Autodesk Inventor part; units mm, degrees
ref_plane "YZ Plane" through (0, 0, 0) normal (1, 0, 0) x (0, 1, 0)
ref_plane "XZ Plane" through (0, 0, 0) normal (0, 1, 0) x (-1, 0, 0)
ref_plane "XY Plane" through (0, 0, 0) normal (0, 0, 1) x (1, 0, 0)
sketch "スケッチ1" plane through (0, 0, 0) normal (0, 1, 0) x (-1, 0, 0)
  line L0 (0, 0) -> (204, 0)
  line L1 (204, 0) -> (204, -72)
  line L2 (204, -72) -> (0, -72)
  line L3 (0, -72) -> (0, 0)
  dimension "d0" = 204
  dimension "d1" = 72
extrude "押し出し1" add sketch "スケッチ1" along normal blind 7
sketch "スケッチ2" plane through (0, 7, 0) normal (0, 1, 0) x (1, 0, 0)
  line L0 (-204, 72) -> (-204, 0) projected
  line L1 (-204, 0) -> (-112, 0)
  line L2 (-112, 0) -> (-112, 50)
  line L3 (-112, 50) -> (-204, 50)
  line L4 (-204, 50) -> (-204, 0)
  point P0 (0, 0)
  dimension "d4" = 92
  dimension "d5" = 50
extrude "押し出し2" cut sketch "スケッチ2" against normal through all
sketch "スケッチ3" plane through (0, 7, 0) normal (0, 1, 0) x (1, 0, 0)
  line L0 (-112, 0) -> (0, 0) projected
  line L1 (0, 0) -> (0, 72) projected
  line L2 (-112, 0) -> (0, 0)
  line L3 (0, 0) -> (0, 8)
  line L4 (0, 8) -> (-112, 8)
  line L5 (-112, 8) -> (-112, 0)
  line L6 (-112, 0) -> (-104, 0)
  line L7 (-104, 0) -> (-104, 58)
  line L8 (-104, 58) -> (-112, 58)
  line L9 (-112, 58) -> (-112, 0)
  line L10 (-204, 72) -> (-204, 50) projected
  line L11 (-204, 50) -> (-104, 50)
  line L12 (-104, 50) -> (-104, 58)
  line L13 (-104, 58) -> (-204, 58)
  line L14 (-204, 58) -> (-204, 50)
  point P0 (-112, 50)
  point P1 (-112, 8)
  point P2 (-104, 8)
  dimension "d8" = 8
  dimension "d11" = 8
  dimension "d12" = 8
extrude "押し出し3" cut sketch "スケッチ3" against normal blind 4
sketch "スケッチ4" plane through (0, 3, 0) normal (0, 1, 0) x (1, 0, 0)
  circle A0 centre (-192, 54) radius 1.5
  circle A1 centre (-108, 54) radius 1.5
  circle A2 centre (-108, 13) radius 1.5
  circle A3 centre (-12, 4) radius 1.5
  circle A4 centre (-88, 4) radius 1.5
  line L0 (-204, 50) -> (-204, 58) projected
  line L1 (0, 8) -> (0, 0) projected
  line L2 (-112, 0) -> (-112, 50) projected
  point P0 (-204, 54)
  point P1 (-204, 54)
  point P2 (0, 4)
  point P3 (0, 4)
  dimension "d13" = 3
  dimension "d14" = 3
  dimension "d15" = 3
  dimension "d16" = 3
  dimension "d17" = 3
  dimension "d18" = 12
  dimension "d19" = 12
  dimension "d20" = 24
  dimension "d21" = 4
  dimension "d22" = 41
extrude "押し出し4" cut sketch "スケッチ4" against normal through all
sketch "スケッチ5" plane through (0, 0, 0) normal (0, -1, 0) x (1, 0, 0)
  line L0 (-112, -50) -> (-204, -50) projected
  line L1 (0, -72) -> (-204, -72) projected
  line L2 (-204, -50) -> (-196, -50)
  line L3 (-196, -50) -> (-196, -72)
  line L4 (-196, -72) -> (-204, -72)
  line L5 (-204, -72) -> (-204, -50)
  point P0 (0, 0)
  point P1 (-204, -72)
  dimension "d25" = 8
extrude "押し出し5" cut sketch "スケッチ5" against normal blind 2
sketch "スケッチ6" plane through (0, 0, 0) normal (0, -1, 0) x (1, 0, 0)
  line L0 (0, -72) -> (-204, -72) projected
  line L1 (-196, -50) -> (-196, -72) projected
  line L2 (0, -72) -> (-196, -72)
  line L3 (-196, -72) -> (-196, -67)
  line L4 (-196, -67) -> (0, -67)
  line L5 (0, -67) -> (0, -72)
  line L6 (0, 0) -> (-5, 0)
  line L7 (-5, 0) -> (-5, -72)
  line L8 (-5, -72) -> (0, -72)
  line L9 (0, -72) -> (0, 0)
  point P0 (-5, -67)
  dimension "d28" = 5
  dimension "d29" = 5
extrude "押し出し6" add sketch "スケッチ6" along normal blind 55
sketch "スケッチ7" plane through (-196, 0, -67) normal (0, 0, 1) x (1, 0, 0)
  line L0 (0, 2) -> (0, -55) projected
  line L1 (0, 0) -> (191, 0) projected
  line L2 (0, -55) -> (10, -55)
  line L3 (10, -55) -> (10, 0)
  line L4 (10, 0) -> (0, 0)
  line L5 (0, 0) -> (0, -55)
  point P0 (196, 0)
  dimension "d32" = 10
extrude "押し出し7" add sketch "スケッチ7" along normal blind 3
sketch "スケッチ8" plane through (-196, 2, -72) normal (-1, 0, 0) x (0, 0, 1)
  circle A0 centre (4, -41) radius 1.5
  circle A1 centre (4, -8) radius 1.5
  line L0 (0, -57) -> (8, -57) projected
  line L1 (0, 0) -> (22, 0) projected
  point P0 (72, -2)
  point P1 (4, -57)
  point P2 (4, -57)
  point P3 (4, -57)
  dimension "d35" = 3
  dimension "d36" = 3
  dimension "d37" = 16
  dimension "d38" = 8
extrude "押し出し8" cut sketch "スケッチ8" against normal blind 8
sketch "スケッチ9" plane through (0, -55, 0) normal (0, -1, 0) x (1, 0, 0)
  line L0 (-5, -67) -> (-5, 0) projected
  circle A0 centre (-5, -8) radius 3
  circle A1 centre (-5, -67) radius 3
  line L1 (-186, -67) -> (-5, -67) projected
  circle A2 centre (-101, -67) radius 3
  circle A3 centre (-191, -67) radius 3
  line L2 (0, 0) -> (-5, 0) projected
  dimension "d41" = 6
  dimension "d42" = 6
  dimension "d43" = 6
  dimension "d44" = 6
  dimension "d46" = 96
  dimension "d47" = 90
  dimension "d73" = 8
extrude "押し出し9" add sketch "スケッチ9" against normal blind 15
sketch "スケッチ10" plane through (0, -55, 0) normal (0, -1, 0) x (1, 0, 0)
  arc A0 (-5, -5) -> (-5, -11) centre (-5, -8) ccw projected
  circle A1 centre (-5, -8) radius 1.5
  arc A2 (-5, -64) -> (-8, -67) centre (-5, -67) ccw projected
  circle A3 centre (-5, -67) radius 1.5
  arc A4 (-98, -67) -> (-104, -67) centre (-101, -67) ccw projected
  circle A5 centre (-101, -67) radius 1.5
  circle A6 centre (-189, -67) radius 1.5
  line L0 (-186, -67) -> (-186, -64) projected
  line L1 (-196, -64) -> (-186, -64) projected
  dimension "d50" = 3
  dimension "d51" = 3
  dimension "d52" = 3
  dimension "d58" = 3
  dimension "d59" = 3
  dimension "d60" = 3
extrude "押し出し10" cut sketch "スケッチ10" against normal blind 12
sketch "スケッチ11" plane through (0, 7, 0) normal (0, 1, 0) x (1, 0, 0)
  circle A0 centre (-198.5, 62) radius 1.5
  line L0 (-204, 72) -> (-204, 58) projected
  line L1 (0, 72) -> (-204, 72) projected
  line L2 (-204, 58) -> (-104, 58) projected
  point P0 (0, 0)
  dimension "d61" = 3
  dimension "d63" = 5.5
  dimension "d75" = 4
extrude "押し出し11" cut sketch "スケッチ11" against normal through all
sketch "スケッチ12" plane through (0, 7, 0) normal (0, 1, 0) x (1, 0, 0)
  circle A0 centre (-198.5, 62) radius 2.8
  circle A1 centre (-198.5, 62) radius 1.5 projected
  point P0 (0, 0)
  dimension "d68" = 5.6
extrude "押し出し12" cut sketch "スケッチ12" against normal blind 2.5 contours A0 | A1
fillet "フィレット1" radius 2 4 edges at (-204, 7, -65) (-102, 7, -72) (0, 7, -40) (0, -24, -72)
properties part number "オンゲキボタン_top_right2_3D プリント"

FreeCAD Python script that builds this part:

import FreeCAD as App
import Part
import Sketcher


def edges_at(feature, points):
    """Names of the edges that pass closest to the given points."""
    edges = feature.Shape.Edges
    near = lambda p: min(range(len(edges)), key=lambda i: edges[i].distToShape(Part.Vertex(*p))[0])
    return sorted({f"Edge{near(p) + 1}" for p in points})

doc = App.newDocument("Part")
body = doc.addObject("PartDesign::Body", "Body")

sketch1 = body.newObject("Sketcher::SketchObject", "Sketch")
sketch1.AttachmentSupport = (doc.getObject("XZ_Plane"), [""])
sketch1.MapMode = "FlatFace"
sketch1.addGeometry([
    Part.LineSegment(App.Vector(-204, 0, 0), App.Vector(0, 0, 0)),
    Part.LineSegment(App.Vector(0, 0, 0), App.Vector(0, -72, 0)),
    Part.LineSegment(App.Vector(0, -72, 0), App.Vector(-204, -72, 0)),
    Part.LineSegment(App.Vector(-204, -72, 0), App.Vector(-204, 0, 0)),
], False)
sketch1.addConstraint([
    Sketcher.Constraint("Coincident", 0, 2, 1, 1),
    Sketcher.Constraint("Coincident", 1, 2, 2, 1),
    Sketcher.Constraint("Coincident", 2, 2, 3, 1),
    Sketcher.Constraint("Coincident", 3, 2, 0, 1),
    Sketcher.Constraint("Horizontal", 0),
    Sketcher.Constraint("Vertical", 1),
    Sketcher.Constraint("Horizontal", 2),
    Sketcher.Constraint("Vertical", 3),
    Sketcher.Constraint("Coincident", 0, 2, -1, 1),
    Sketcher.Constraint("DistanceX", 0, 1, 0, 2, 204.0),
    Sketcher.Constraint("DistanceY", 1, 2, 1, 1, 72.0),
])
pad1 = body.newObject("PartDesign::Pad", "Pad")
pad1.Profile = sketch1
pad1.Length = 7
pad1.Reversed = True

sketch2 = body.newObject("Sketcher::SketchObject", "Sketch001")
sketch2.AttachmentSupport = (doc.getObject("XZ_Plane"), [""])
sketch2.MapMode = "FlatFace"
sketch2.AttachmentOffset = App.Placement(App.Vector(0, 0, -7), App.Rotation())
sketch2.addGeometry([
    Part.LineSegment(App.Vector(-112, -50, 0), App.Vector(-204, -50, 0)),
    Part.LineSegment(App.Vector(-204, -50, 0), App.Vector(-204, 0, 0)),
    Part.LineSegment(App.Vector(-204, 0, 0), App.Vector(-112, 0, 0)),
    Part.LineSegment(App.Vector(-112, 0, 0), App.Vector(-112, -50, 0)),
], False)
sketch2.addConstraint([
    Sketcher.Constraint("Coincident", 0, 2, 1, 1),
    Sketcher.Constraint("Coincident", 1, 2, 2, 1),
    Sketcher.Constraint("Coincident", 2, 2, 3, 1),
    Sketcher.Constraint("Coincident", 3, 2, 0, 1),
    Sketcher.Constraint("Horizontal", 0),
    Sketcher.Constraint("Vertical", 1),
    Sketcher.Constraint("Horizontal", 2),
    Sketcher.Constraint("Vertical", 3),
    Sketcher.Constraint("PointOnObject", 1, 2, -1),
    Sketcher.Constraint("DistanceX", 0, 2, 0, 1, 92.0),
    Sketcher.Constraint("DistanceY", 1, 1, 1, 2, 50.0),
    Sketcher.Constraint("DistanceX", 0, 2, -1, 1, 204.0),
])
pocket1 = body.newObject("PartDesign::Pocket", "Pocket")
pocket1.Profile = sketch2
pocket1.Type = "ThroughAll"
pocket1.Reversed = True

sketch3 = body.newObject("Sketcher::SketchObject", "Sketch002")
sketch3.AttachmentSupport = (doc.getObject("XZ_Plane"), [""])
sketch3.MapMode = "FlatFace"
sketch3.AttachmentOffset = App.Placement(App.Vector(0, 0, -7), App.Rotation())
sketch3.addGeometry([
    Part.LineSegment(App.Vector(-112, 0, 0), App.Vector(0, 0, 0)),
    Part.LineSegment(App.Vector(0, 0, 0), App.Vector(0, -8, 0)),
    Part.LineSegment(App.Vector(0, -8, 0), App.Vector(-104, -8, 0)),
    Part.LineSegment(App.Vector(-104, -8, 0), App.Vector(-104, -58, 0)),
    Part.LineSegment(App.Vector(-104, -58, 0), App.Vector(-204, -58, 0)),
    Part.LineSegment(App.Vector(-204, -58, 0), App.Vector(-204, -50, 0)),
    Part.LineSegment(App.Vector(-204, -50, 0), App.Vector(-112, -50, 0)),
    Part.LineSegment(App.Vector(-112, -50, 0), App.Vector(-112, 0, 0)),
], False)
sketch3.addConstraint([
    Sketcher.Constraint("Coincident", 0, 2, 1, 1),
    Sketcher.Constraint("Coincident", 1, 2, 2, 1),
    Sketcher.Constraint("Coincident", 2, 2, 3, 1),
    Sketcher.Constraint("Coincident", 3, 2, 4, 1),
    Sketcher.Constraint("Coincident", 4, 2, 5, 1),
    Sketcher.Constraint("Coincident", 5, 2, 6, 1),
    Sketcher.Constraint("Coincident", 6, 2, 7, 1),
    Sketcher.Constraint("Coincident", 7, 2, 0, 1),
    Sketcher.Constraint("Horizontal", 0),
    Sketcher.Constraint("Vertical", 1),
    Sketcher.Constraint("Horizontal", 2),
    Sketcher.Constraint("Vertical", 3),
    Sketcher.Constraint("Horizontal", 4),
    Sketcher.Constraint("Vertical", 5),
    Sketcher.Constraint("Horizontal", 6),
    Sketcher.Constraint("Vertical", 7),
    Sketcher.Constraint("Coincident", 0, 2, -1, 1),
    Sketcher.Constraint("Equal", 1, 5),
    Sketcher.Constraint("DistanceY", 1, 2, 1, 1, 8.0),
    Sketcher.Constraint("DistanceX", 6, 2, 3, 2, 8.0),
    Sketcher.Constraint("DistanceX", 0, 1, 0, 2, 112.0),
    Sketcher.Constraint("DistanceX", 4, 2, 4, 1, 100.0),
    Sketcher.Constraint("DistanceY", 3, 2, 3, 1, 50.0),
])
pocket2 = body.newObject("PartDesign::Pocket", "Pocket001")
pocket2.Profile = sketch3
pocket2.Length = 4
pocket2.Reversed = True

sketch4 = body.newObject("Sketcher::SketchObject", "Sketch003")
sketch4.AttachmentSupport = (doc.getObject("XZ_Plane"), [""])
sketch4.MapMode = "FlatFace"
sketch4.AttachmentOffset = App.Placement(App.Vector(0, 0, -3), App.Rotation())
sketch4.addGeometry([
    Part.Circle(App.Vector(-192, -54, 0), App.Vector(0, 0, 1), 1.5),
    Part.Circle(App.Vector(-108, -54, 0), App.Vector(0, 0, 1), 1.5),
    Part.Circle(App.Vector(-108, -13, 0), App.Vector(0, 0, 1), 1.5),
    Part.Circle(App.Vector(-12, -4, 0), App.Vector(0, 0, 1), 1.5),
    Part.Circle(App.Vector(-88, -4, 0), App.Vector(0, 0, 1), 1.5),
], False)
sketch4.addConstraint([
    Sketcher.Constraint("Equal", 0, 1),
    Sketcher.Constraint("Equal", 1, 2),
    Sketcher.Constraint("Equal", 2, 3),
    Sketcher.Constraint("Equal", 3, 4),
    Sketcher.Constraint("Horizontal", 0, 3, 1, 3),
    Sketcher.Constraint("Horizontal", 3, 3, 4, 3),
    Sketcher.Constraint("Vertical", 1, 3, 2, 3),
    Sketcher.Constraint("Diameter", 0, 3.0),
    Sketcher.Constraint("DistanceX", 3, 3, -1, 1, 12.0),
    Sketcher.Constraint("DistanceY", 3, 3, -1, 1, 4.0),
    Sketcher.Constraint("DistanceY", 1, 3, 2, 3, 41.0),
    Sketcher.Constraint("DistanceX", 0, 3, -1, 1, 192.0),
    Sketcher.Constraint("DistanceY", 0, 3, -1, 1, 54.0),
    Sketcher.Constraint("DistanceX", 1, 3, -1, 1, 108.0),
    Sketcher.Constraint("DistanceX", 4, 3, -1, 1, 88.0),
])
pocket3 = body.newObject("PartDesign::Pocket", "Pocket002")
pocket3.Profile = sketch4
pocket3.Type = "ThroughAll"
pocket3.Reversed = True

sketch5 = body.newObject("Sketcher::SketchObject", "Sketch004")
sketch5.AttachmentSupport = (doc.getObject("XZ_Plane"), [""])
sketch5.MapMode = "FlatFace"
sketch5.addGeometry([
    Part.LineSegment(App.Vector(-196, -72, 0), App.Vector(-196, -50, 0)),
    Part.LineSegment(App.Vector(-196, -50, 0), App.Vector(-204, -50, 0)),
    Part.LineSegment(App.Vector(-204, -50, 0), App.Vector(-204, -72, 0)),
    Part.LineSegment(App.Vector(-204, -72, 0), App.Vector(-196, -72, 0)),
], False)
sketch5.addConstraint([
    Sketcher.Constraint("Coincident", 0, 2, 1, 1),
    Sketcher.Constraint("Coincident", 1, 2, 2, 1),
    Sketcher.Constraint("Coincident", 2, 2, 3, 1),
    Sketcher.Constraint("Coincident", 3, 2, 0, 1),
    Sketcher.Constraint("Vertical", 0),
    Sketcher.Constraint("Horizontal", 1),
    Sketcher.Constraint("Vertical", 2),
    Sketcher.Constraint("Horizontal", 3),
    Sketcher.Constraint("DistanceX", 1, 2, 1, 1, 8.0),
    Sketcher.Constraint("DistanceY", 0, 1, 0, 2, 22.0),
    Sketcher.Constraint("DistanceX", 0, 2, -1, 1, 196.0),
    Sketcher.Constraint("DistanceY", 0, 2, -1, 1, 50.0),
])
pocket4 = body.newObject("PartDesign::Pocket", "Pocket003")
pocket4.Profile = sketch5
pocket4.Length = 2

sketch6 = body.newObject("Sketcher::SketchObject", "Sketch005")
sketch6.AttachmentSupport = (doc.getObject("XZ_Plane"), [""])
sketch6.MapMode = "FlatFace"
sketch6.addGeometry([
    Part.LineSegment(App.Vector(0, -72, 0), App.Vector(0, 0, 0)),
    Part.LineSegment(App.Vector(0, 0, 0), App.Vector(-5, 0, 0)),
    Part.LineSegment(App.Vector(-5, 0, 0), App.Vector(-5, -67, 0)),
    Part.LineSegment(App.Vector(-5, -67, 0), App.Vector(-196, -67, 0)),
    Part.LineSegment(App.Vector(-196, -67, 0), App.Vector(-196, -72, 0)),
    Part.LineSegment(App.Vector(-196, -72, 0), App.Vector(0, -72, 0)),
], False)
sketch6.addConstraint([
    Sketcher.Constraint("Coincident", 0, 2, 1, 1),
    Sketcher.Constraint("Coincident", 1, 2, 2, 1),
    Sketcher.Constraint("Coincident", 2, 2, 3, 1),
    Sketcher.Constraint("Coincident", 3, 2, 4, 1),
    Sketcher.Constraint("Coincident", 4, 2, 5, 1),
    Sketcher.Constraint("Coincident", 5, 2, 0, 1),
    Sketcher.Constraint("Vertical", 0),
    Sketcher.Constraint("Horizontal", 1),
    Sketcher.Constraint("Vertical", 2),
    Sketcher.Constraint("Horizontal", 3),
    Sketcher.Constraint("Vertical", 4),
    Sketcher.Constraint("Horizontal", 5),
    Sketcher.Constraint("Coincident", 0, 2, -1, 1),
    Sketcher.Constraint("Equal", 1, 4),
    Sketcher.Constraint("DistanceX", 1, 2, 1, 1, 5.0),
    Sketcher.Constraint("DistanceX", 3, 2, 3, 1, 191.0),
    Sketcher.Constraint("DistanceY", 0, 1, 0, 2, 72.0),
])
pad2 = body.newObject("PartDesign::Pad", "Pad001")
pad2.Profile = sketch6
pad2.Length = 55

sketch7 = body.newObject("Sketcher::SketchObject", "Sketch006")
sketch7.AttachmentSupport = (doc.getObject("XY_Plane"), [""])
sketch7.MapMode = "FlatFace"
sketch7.AttachmentOffset = App.Placement(App.Vector(0, 0, -67), App.Rotation())
sketch7.addGeometry([
    Part.LineSegment(App.Vector(-186, 0, 0), App.Vector(-196, 0, 0)),
    Part.LineSegment(App.Vector(-196, 0, 0), App.Vector(-196, -55, 0)),
    Part.LineSegment(App.Vector(-196, -55, 0), App.Vector(-186, -55, 0)),
    Part.LineSegment(App.Vector(-186, -55, 0), App.Vector(-186, 0, 0)),
], False)
sketch7.addConstraint([
    Sketcher.Constraint("Coincident", 0, 2, 1, 1),
    Sketcher.Constraint("Coincident", 1, 2, 2, 1),
    Sketcher.Constraint("Coincident", 2, 2, 3, 1),
    Sketcher.Constraint("Coincident", 3, 2, 0, 1),
    Sketcher.Constraint("Horizontal", 0),
    Sketcher.Constraint("Vertical", 1),
    Sketcher.Constraint("Horizontal", 2),
    Sketcher.Constraint("Vertical", 3),
    Sketcher.Constraint("PointOnObject", 0, 2, -1),
    Sketcher.Constraint("DistanceX", 0, 2, 0, 1, 10.0),
    Sketcher.Constraint("DistanceY", 1, 2, 1, 1, 55.0),
    Sketcher.Constraint("DistanceX", 0, 2, -1, 1, 196.0),
])
pad3 = body.newObject("PartDesign::Pad", "Pad002")
pad3.Profile = sketch7
pad3.Length = 3

sketch8 = body.newObject("Sketcher::SketchObject", "Sketch007")
sketch8.AttachmentSupport = (doc.getObject("YZ_Plane"), [""])
sketch8.MapMode = "FlatFace"
sketch8.AttachmentOffset = App.Placement(App.Vector(0, 0, -196), App.Rotation())
sketch8.addGeometry([
    Part.Circle(App.Vector(-39, -68, 0), App.Vector(0, 0, 1), 1.5),
    Part.Circle(App.Vector(-6, -68, 0), App.Vector(0, 0, 1), 1.5),
], False)
sketch8.addConstraint([
    Sketcher.Constraint("Equal", 0, 1),
    Sketcher.Constraint("Horizontal", 0, 3, 1, 3),
    Sketcher.Constraint("Diameter", 0, 3.0),
    Sketcher.Constraint("DistanceX", 0, 3, -1, 1, 39.0),
    Sketcher.Constraint("DistanceY", 0, 3, -1, 1, 68.0),
    Sketcher.Constraint("DistanceX", 1, 3, -1, 1, 6.0),
])
pocket5 = body.newObject("PartDesign::Pocket", "Pocket004")
pocket5.Profile = sketch8
pocket5.Length = 8
pocket5.Reversed = True

sketch9 = body.newObject("Sketcher::SketchObject", "Sketch008")
sketch9.AttachmentSupport = (doc.getObject("XZ_Plane"), [""])
sketch9.MapMode = "FlatFace"
sketch9.AttachmentOffset = App.Placement(App.Vector(0, 0, 55), App.Rotation())
sketch9.addGeometry([
    Part.Circle(App.Vector(-5, -67, 0), App.Vector(0, 0, 1), 3),
    Part.Circle(App.Vector(-5, -8, 0), App.Vector(0, 0, 1), 3),
    Part.Circle(App.Vector(-101, -67, 0), App.Vector(0, 0, 1), 3),
    Part.Circle(App.Vector(-191, -67, 0), App.Vector(0, 0, 1), 3),
], False)
sketch9.addConstraint([
    Sketcher.Constraint("Equal", 0, 1),
    Sketcher.Constraint("Equal", 1, 2),
    Sketcher.Constraint("Equal", 2, 3),
    Sketcher.Constraint("Horizontal", 0, 3, 2, 3),
    Sketcher.Constraint("Horizontal", 2, 3, 3, 3),
    Sketcher.Constraint("Vertical", 0, 3, 1, 3),
    Sketcher.Constraint("Diameter", 0, 6.0),
    Sketcher.Constraint("DistanceY", 1, 3, -1, 1, 8.0),
    Sketcher.Constraint("DistanceX", 2, 3, 0, 3, 96.0),
    Sketcher.Constraint("DistanceX", 3, 3, 2, 3, 90.0),
    Sketcher.Constraint("DistanceX", 0, 3, -1, 1, 5.0),
    Sketcher.Constraint("DistanceY", 0, 3, -1, 1, 67.0),
])
pad4 = body.newObject("PartDesign::Pad", "Pad003")
pad4.Profile = sketch9
pad4.Length = 15
pad4.Reversed = True

sketch10 = body.newObject("Sketcher::SketchObject", "Sketch009")
sketch10.AttachmentSupport = (doc.getObject("XZ_Plane"), [""])
sketch10.MapMode = "FlatFace"
sketch10.AttachmentOffset = App.Placement(App.Vector(0, 0, 55), App.Rotation())
sketch10.addGeometry([
    Part.Circle(App.Vector(-5, -8, 0), App.Vector(0, 0, 1), 1.5),
    Part.Circle(App.Vector(-5, -67, 0), App.Vector(0, 0, 1), 1.5),
    Part.Circle(App.Vector(-101, -67, 0), App.Vector(0, 0, 1), 1.5),
    Part.Circle(App.Vector(-189, -67, 0), App.Vector(0, 0, 1), 1.5),
], False)
sketch10.addConstraint([
    Sketcher.Constraint("Equal", 0, 1),
    Sketcher.Constraint("Equal", 1, 2),
    Sketcher.Constraint("Equal", 2, 3),
    Sketcher.Constraint("Horizontal", 1, 3, 2, 3),
    Sketcher.Constraint("Horizontal", 2, 3, 3, 3),
    Sketcher.Constraint("Vertical", 0, 3, 1, 3),
    Sketcher.Constraint("Diameter", 0, 3.0),
    Sketcher.Constraint("DistanceX", 0, 3, -1, 1, 5.0),
    Sketcher.Constraint("DistanceY", 0, 3, -1, 1, 8.0),
    Sketcher.Constraint("DistanceY", 1, 3, -1, 1, 67.0),
    Sketcher.Constraint("DistanceX", 2, 3, -1, 1, 101.0),
    Sketcher.Constraint("DistanceX", 3, 3, -1, 1, 189.0),
])
pocket6 = body.newObject("PartDesign::Pocket", "Pocket005")
pocket6.Profile = sketch10
pocket6.Length = 12

sketch11 = body.newObject("Sketcher::SketchObject", "Sketch010")
sketch11.AttachmentSupport = (doc.getObject("XZ_Plane"), [""])
sketch11.MapMode = "FlatFace"
sketch11.AttachmentOffset = App.Placement(App.Vector(0, 0, -7), App.Rotation())
sketch11.addGeometry(Part.Circle(App.Vector(-198.5, -62, 0), App.Vector(0, 0, 1), 1.5), False)
sketch11.addConstraint([
    Sketcher.Constraint("Diameter", 0, 3.0),
    Sketcher.Constraint("DistanceY", 0, 3, -1, 1, 62.0),
    Sketcher.Constraint("DistanceX", 0, 3, -1, 1, 198.5),
])
pocket7 = body.newObject("PartDesign::Pocket", "Pocket006")
pocket7.Profile = sketch11
pocket7.Type = "ThroughAll"
pocket7.Reversed = True

sketch12 = body.newObject("Sketcher::SketchObject", "Sketch011")
sketch12.AttachmentSupport = (doc.getObject("XZ_Plane"), [""])
sketch12.MapMode = "FlatFace"
sketch12.AttachmentOffset = App.Placement(App.Vector(0, 0, -7), App.Rotation())
sketch12.addGeometry(Part.Circle(App.Vector(-198.5, -62, 0), App.Vector(0, 0, 1), 2.8), False)
sketch12.addConstraint([
    Sketcher.Constraint("Diameter", 0, 5.6),
    Sketcher.Constraint("DistanceY", 0, 3, -1, 1, 62.0),
    Sketcher.Constraint("DistanceX", 0, 3, -1, 1, 198.5),
])
pocket8 = body.newObject("PartDesign::Pocket", "Pocket007")
pocket8.Profile = sketch12
pocket8.Length = 2.5
pocket8.Reversed = True
doc.recompute()

fillet = body.newObject("PartDesign::Fillet", "Fillet")
fillet.Base = (pocket8, edges_at(pocket8, [
    (-204, 7, -65),
    (-102, 7, -72),
    (0, 7, -40),
    (0, -24, -72),
]))
fillet.Radius = 2

doc.recompute()
